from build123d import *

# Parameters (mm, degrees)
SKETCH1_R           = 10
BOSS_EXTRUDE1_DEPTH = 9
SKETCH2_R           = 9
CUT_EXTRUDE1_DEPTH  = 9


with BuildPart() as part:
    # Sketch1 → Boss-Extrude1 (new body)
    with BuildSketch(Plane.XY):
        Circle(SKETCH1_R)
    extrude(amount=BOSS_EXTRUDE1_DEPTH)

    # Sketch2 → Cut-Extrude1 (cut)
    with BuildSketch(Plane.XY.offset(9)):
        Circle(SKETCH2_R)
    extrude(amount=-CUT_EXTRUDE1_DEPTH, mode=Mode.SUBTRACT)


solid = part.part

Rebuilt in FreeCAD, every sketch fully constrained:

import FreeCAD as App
import Part
import Sketcher

V = App.Vector
Q = App.Units.Quantity

doc = App.newDocument("Part")
params = doc.addObject("Spreadsheet::Sheet", "Params")
for row, (alias, value) in enumerate([
    ("sketch1_diameter", "20 mm"),
    ("pad1_length", "9 mm"),
    ("sketch2_diameter", "18 mm"),
    ("pocket1_length", "9 mm"),
], start=1):
    params.set(f"A{row}", alias)
    params.set(f"B{row}", "=" + value)
    params.setAlias(f"B{row}", alias)

body = doc.addObject("PartDesign::Body", "Body")

sketch1 = body.newObject("Sketcher::SketchObject", "Sketch")
sketch1.AttachmentSupport = (doc.getObject("XY_Plane"), [""])
sketch1.MapMode = "FlatFace"
sketch1.addGeometry(Part.Circle(V(0, 0, 0), V(0, 0, 1), 10), False)
sketch1.addConstraint([
    Sketcher.Constraint("Coincident", 0, 3, -1, 1),
    Sketcher.Constraint("Diameter", 0, Q("20 mm")),
])
sketch1.setExpression("Constraints[1]", "Params.sketch1_diameter")
pad1 = body.newObject("PartDesign::Pad", "Pad")
pad1.Profile = sketch1
pad1.setExpression("Length", "Params.pad1_length")

sketch2 = body.newObject("Sketcher::SketchObject", "Sketch001")
sketch2.AttachmentSupport = (doc.getObject("XY_Plane"), [""])
sketch2.MapMode = "FlatFace"
sketch2.AttachmentOffset = App.Placement(V(0, 0, 9), App.Rotation())
sketch2.addGeometry(Part.Circle(V(0, 0, 0), V(0, 0, 1), 9), False)
sketch2.addConstraint([
    Sketcher.Constraint("Coincident", 0, 3, -1, 1),
    Sketcher.Constraint("Diameter", 0, Q("18 mm")),
])
sketch2.setExpression("Constraints[1]", "Params.sketch2_diameter")
pocket1 = body.newObject("PartDesign::Pocket", "Pocket")
pocket1.Profile = sketch2
pocket1.setExpression("Length", "Params.pocket1_length")

doc.recompute()
